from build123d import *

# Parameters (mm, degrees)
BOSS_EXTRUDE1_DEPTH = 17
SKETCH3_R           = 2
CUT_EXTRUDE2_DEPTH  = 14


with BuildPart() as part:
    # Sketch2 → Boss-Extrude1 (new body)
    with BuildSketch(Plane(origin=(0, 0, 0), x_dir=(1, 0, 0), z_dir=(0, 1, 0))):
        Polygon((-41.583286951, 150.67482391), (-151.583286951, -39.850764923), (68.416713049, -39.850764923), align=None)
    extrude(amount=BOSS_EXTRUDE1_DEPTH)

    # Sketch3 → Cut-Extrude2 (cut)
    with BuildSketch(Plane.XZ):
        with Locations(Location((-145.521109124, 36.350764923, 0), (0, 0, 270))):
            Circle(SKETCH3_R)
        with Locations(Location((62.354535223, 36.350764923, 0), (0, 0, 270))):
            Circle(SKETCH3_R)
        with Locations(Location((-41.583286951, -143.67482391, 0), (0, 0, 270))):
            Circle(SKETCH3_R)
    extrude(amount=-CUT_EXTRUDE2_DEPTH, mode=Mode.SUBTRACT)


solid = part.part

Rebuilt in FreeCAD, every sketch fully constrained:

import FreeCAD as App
import Part
import Sketcher
from FreeCAD import Vector
Q = App.Units.Quantity

doc = App.newDocument("Part")
body = doc.addObject("PartDesign::Body", "Body")

# Sketch on XZ plane
sketch1 = doc.addObject("Sketcher::SketchObject", "Sketch")
body.addObject(sketch1)
sketch1.AttachmentSupport = (doc.XZ_Plane, [""])
sketch1.MapMode = "FlatFace"
sketch1.addGeometry([
    Part.LineSegment(Vector(-42, -151, 0), Vector(-152, 40, 0)),
    Part.LineSegment(Vector(-152, 40, 0), Vector(68, 40, 0)),
    Part.LineSegment(Vector(68, 40, 0), Vector(-42, -151, 0)),
], False)
sketch1.addConstraint([
    Sketcher.Constraint("Coincident", 0, 2, 1, 1),
    Sketcher.Constraint("Coincident", 1, 2, 2, 1),
    Sketcher.Constraint("Coincident", 2, 2, 0, 1),
    Sketcher.Constraint("Horizontal", 1),
    Sketcher.Constraint("Equal", 0, 2),
    Sketcher.Constraint("DistanceX", 1, 1, 1, 2, Q("220 mm")),
    Sketcher.Constraint("Angle", 0, Q("120 deg")),
    Sketcher.Constraint("DistanceX", 0, 2, -1, 1, Q("151.583287 mm")),
    Sketcher.Constraint("DistanceY", -1, 1, 0, 2, Q("39.850765 mm")),
])
pad1 = doc.addObject("PartDesign::Pad", "Pad")
body.addObject(pad1)
pad1.Profile = sketch1
pad1.Length = 17
pad1.Reversed = True

# Sketch on XZ plane
sketch2 = doc.addObject("Sketcher::SketchObject", "Sketch001")
body.addObject(sketch2)
sketch2.AttachmentSupport = (doc.XZ_Plane, [""])
sketch2.MapMode = "FlatFace"
sketch2.addGeometry([
    Part.Circle(Vector(-145.5, 36.4, 0), Vector(0, 0, 1), 2),
    Part.Circle(Vector(62.4, 36.4, 0), Vector(0, 0, 1), 2),
    Part.Circle(Vector(-41.6, -143.7, 0), Vector(0, 0, 1), 2),
], False)
sketch2.addConstraint([
    Sketcher.Constraint("Equal", 0, 1),
    Sketcher.Constraint("Equal", 1, 2),
    Sketcher.Constraint("Horizontal", 0, 3, 1, 3),
    Sketcher.Constraint("Diameter", 0, Q("4 mm")),
    Sketcher.Constraint("DistanceX", 0, 3, -1, 1, Q("145.521109 mm")),
    Sketcher.Constraint("DistanceY", 2, 3, 0, 3, Q("180.025589 mm")),
    Sketcher.Constraint("DistanceY", -1, 1, 0, 3, Q("36.350765 mm")),
    Sketcher.Constraint("DistanceX", -1, 1, 1, 3, Q("62.354535 mm")),
    Sketcher.Constraint("DistanceX", 2, 3, -1, 1, Q("41.583287 mm")),
])
pocket1 = doc.addObject("PartDesign::Pocket", "Pocket")
body.addObject(pocket1)
pocket1.Profile = sketch2
pocket1.Length = 14

doc.recompute()
